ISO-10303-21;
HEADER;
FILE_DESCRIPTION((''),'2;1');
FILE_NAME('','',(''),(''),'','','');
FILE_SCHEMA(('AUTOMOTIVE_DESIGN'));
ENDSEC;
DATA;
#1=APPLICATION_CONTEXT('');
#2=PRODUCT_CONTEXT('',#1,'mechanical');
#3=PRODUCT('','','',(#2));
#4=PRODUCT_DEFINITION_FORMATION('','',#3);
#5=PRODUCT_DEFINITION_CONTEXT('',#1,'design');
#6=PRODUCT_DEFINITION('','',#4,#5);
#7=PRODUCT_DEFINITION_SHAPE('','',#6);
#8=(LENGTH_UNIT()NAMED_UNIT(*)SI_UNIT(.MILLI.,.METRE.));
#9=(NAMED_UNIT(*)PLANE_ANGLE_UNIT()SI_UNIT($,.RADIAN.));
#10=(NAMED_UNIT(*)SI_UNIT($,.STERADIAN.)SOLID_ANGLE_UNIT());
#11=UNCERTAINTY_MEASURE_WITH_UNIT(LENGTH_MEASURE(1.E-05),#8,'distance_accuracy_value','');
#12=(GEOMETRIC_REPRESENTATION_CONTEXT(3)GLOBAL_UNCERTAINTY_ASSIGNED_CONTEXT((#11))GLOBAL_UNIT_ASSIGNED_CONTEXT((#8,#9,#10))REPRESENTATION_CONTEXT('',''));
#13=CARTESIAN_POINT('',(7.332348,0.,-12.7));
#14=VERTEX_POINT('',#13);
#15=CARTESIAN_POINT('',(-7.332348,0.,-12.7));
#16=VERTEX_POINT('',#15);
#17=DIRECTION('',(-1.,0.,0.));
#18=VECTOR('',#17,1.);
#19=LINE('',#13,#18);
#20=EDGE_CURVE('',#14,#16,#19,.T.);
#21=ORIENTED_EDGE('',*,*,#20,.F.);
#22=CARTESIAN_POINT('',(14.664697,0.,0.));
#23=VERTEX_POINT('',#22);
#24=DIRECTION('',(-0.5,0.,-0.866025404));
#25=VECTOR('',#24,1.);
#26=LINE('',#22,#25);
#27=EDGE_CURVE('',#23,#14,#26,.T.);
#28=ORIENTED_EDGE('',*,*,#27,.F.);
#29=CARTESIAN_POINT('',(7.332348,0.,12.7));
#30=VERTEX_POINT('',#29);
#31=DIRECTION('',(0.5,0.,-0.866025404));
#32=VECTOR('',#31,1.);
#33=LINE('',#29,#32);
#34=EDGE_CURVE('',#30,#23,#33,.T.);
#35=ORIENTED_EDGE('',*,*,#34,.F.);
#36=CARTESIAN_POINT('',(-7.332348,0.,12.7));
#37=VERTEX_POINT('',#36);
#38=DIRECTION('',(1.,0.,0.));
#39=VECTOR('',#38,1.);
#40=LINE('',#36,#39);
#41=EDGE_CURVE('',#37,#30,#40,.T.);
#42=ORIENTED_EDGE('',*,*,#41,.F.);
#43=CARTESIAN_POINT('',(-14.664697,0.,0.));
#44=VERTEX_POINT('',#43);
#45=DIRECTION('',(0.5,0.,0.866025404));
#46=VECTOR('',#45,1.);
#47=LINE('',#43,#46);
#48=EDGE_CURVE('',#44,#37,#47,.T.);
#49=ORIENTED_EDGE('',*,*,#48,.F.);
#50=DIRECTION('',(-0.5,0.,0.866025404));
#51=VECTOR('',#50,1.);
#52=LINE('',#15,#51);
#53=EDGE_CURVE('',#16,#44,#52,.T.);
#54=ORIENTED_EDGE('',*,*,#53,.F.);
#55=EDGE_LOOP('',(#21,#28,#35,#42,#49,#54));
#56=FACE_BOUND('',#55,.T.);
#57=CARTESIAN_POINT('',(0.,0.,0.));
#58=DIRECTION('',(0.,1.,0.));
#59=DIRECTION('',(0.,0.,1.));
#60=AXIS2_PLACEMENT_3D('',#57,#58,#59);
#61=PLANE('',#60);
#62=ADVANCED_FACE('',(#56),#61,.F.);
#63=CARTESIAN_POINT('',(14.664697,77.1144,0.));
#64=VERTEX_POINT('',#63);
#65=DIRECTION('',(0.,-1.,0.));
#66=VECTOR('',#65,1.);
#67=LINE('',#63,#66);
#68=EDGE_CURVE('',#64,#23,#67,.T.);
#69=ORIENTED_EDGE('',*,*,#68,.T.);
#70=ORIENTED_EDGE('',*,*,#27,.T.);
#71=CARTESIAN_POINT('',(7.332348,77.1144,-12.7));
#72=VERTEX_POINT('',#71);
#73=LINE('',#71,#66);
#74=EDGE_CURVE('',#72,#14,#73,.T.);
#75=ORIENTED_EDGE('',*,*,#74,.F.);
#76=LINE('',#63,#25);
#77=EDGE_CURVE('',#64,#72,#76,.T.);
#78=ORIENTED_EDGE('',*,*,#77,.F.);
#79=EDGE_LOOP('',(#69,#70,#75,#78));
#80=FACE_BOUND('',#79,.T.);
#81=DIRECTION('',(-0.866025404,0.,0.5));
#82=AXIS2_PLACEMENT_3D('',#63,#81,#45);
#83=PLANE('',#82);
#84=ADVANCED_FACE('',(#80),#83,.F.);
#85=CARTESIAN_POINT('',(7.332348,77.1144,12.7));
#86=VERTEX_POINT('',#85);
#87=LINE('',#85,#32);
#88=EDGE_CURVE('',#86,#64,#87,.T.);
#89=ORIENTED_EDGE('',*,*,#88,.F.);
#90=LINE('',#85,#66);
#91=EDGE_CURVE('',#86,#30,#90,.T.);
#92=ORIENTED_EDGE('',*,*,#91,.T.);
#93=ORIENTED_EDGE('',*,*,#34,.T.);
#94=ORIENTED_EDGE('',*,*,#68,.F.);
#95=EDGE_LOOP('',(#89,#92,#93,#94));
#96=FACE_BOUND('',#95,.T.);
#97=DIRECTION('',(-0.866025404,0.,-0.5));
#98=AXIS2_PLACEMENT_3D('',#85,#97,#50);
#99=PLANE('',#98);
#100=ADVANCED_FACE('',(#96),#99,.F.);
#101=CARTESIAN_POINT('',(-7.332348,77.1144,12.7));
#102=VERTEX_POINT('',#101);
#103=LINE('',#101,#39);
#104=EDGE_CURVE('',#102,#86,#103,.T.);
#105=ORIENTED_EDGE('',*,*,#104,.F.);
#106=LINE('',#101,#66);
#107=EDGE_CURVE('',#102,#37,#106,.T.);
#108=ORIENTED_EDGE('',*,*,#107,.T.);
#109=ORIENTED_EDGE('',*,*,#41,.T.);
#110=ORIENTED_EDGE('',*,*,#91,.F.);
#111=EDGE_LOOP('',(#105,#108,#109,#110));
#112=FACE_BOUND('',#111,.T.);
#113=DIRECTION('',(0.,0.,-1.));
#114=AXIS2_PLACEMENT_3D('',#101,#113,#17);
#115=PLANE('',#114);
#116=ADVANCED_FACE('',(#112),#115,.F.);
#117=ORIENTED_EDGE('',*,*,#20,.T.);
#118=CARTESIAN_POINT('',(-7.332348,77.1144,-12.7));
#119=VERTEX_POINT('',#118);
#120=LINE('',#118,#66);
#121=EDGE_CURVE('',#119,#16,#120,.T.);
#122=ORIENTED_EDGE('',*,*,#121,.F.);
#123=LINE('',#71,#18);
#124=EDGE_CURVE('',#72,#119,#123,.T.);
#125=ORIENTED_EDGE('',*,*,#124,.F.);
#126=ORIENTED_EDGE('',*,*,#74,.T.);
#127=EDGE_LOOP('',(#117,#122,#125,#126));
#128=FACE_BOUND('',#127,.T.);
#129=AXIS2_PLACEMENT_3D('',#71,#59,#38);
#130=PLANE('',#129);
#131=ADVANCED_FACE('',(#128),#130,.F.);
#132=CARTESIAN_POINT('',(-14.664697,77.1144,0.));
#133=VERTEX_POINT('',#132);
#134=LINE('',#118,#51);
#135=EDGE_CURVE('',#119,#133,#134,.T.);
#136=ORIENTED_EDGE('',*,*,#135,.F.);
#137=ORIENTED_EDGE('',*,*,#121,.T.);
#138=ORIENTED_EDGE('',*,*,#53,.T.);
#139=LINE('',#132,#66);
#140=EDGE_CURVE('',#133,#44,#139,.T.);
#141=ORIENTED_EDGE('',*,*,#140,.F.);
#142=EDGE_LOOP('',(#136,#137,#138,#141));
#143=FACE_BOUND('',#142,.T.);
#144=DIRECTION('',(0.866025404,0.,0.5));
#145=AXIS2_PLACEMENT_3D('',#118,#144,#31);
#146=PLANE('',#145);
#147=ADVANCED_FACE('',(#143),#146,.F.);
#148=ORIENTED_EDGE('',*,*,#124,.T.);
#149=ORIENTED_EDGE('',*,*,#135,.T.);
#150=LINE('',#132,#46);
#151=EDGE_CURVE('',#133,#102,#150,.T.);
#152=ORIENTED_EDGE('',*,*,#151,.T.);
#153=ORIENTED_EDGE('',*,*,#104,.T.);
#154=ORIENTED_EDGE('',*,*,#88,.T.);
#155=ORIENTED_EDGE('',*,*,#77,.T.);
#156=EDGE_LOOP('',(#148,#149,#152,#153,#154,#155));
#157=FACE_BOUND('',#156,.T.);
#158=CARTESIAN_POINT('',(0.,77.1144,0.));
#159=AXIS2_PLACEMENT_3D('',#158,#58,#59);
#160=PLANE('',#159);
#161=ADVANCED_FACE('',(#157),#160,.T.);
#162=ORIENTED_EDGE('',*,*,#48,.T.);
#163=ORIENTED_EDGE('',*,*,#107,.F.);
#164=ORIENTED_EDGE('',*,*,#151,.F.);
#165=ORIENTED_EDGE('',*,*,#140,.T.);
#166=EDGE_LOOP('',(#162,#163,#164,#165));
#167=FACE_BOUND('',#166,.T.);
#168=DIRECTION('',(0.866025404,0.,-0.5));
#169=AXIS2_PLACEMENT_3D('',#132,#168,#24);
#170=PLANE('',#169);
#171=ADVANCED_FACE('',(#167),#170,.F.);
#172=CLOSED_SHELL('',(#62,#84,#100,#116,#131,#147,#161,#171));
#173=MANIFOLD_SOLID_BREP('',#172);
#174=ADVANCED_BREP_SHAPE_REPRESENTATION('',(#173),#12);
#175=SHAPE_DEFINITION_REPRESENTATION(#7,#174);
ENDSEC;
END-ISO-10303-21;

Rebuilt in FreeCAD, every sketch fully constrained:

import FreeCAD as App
import Part
import Sketcher

V = App.Vector
Q = App.Units.Quantity

doc = App.newDocument("Part")
body = doc.addObject("PartDesign::Body", "Body")

sketch1 = doc.addObject("Sketcher::SketchObject", "Sketch")
body.addObject(sketch1)
sketch1.AttachmentSupport = (doc.XZ_Plane, [""])
sketch1.MapMode = "FlatFace"
sketch1.addGeometry([
    Part.LineSegment(V(15, 0, 0), V(7, -13, 0)),
    Part.LineSegment(V(7, -13, 0), V(-7, -13, 0)),
    Part.LineSegment(V(-7, -13, 0), V(-15, 0, 0)),
    Part.LineSegment(V(-15, 0, 0), V(-7, 13, 0)),
    Part.LineSegment(V(-7, 13, 0), V(7, 13, 0)),
    Part.LineSegment(V(7, 13, 0), V(15, 0, 0)),
], False)
sketch1.addConstraint([
    Sketcher.Constraint("Coincident", 0, 2, 1, 1),
    Sketcher.Constraint("Coincident", 1, 2, 2, 1),
    Sketcher.Constraint("Coincident", 2, 2, 3, 1),
    Sketcher.Constraint("Coincident", 3, 2, 4, 1),
    Sketcher.Constraint("Coincident", 4, 2, 5, 1),
    Sketcher.Constraint("Coincident", 5, 2, 0, 1),
    Sketcher.Constraint("Horizontal", 1),
    Sketcher.Constraint("Horizontal", 4),
    Sketcher.Constraint("Symmetric", 0, 2, 3, 2, -1, 1),
    Sketcher.Constraint("Symmetric", 2, 2, 5, 2, -1, 1),
    Sketcher.Constraint("PointOnObject", 2, 2, -1),
    Sketcher.Constraint("Parallel", 2, 5),
    Sketcher.Constraint("Vertical", 1, 2, 3, 2),
    Sketcher.Constraint("Angle", 0, Q("-120 deg")),
    Sketcher.Constraint("DistanceY", 1, 2, 3, 2, Q("1 in")),
    Sketcher.Constraint("DistanceX", 1, 2, 1, 1, 14.664697),
])
pad1 = doc.addObject("PartDesign::Pad", "Pad")
body.addObject(pad1)
pad1.Profile = sketch1
pad1.Length = Q("3.036 in")
pad1.Reversed = True

doc.recompute()
